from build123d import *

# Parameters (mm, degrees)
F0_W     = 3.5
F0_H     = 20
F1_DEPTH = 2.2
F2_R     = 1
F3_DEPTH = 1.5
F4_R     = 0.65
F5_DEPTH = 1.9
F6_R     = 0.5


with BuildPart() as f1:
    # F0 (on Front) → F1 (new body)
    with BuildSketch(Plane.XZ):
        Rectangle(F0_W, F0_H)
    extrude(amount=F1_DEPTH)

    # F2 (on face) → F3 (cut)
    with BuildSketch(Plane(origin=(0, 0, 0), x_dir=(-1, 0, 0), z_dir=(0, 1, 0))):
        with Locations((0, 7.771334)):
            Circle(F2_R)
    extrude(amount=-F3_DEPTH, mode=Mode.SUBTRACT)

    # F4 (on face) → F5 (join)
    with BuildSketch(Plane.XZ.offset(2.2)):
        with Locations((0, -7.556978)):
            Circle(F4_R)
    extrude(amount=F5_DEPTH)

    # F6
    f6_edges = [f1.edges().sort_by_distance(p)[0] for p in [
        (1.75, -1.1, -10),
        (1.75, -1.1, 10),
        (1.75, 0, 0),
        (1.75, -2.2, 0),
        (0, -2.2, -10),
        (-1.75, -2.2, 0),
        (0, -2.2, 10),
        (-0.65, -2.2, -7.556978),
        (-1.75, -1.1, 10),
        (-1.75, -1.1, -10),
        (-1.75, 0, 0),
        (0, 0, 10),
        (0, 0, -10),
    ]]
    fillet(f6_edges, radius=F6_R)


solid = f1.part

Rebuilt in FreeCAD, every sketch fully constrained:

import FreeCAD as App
import Part
import Sketcher
Q = App.Units.Quantity


def edges_at(feature, points):
    """Names of the edges that pass closest to the given points."""
    edges = feature.Shape.Edges
    near = lambda p: min(range(len(edges)), key=lambda i: edges[i].distToShape(Part.Vertex(*p))[0])
    return sorted({f"Edge{near(p) + 1}" for p in points})

doc = App.newDocument("Part")
body = doc.addObject("PartDesign::Body", "Body")

# Sketch on XZ plane
sketch1 = doc.addObject("Sketcher::SketchObject", "Sketch")
body.addObject(sketch1)
sketch1.AttachmentSupport = (doc.XZ_Plane, [""])
sketch1.MapMode = "FlatFace"
sketch1.addGeometry([
    Part.LineSegment(App.Vector(-1.8, 10, 0), App.Vector(-1.8, -10, 0)),
    Part.LineSegment(App.Vector(-1.8, -10, 0), App.Vector(1.8, -10, 0)),
    Part.LineSegment(App.Vector(1.8, -10, 0), App.Vector(1.8, 10, 0)),
    Part.LineSegment(App.Vector(1.8, 10, 0), App.Vector(-1.8, 10, 0)),
], False)
sketch1.addConstraint([
    Sketcher.Constraint("Coincident", 0, 2, 1, 1),
    Sketcher.Constraint("Coincident", 1, 2, 2, 1),
    Sketcher.Constraint("Coincident", 2, 2, 3, 1),
    Sketcher.Constraint("Coincident", 3, 2, 0, 1),
    Sketcher.Constraint("Vertical", 0),
    Sketcher.Constraint("Horizontal", 1),
    Sketcher.Constraint("Vertical", 2),
    Sketcher.Constraint("Horizontal", 3),
    Sketcher.Constraint("Symmetric", 0, 2, 2, 2, -1, 1),
    Sketcher.Constraint("DistanceY", 0, 2, 0, 1, Q("20 mm")),
    Sketcher.Constraint("DistanceX", 1, 1, 1, 2, Q("3.5 mm")),
])
pad1 = doc.addObject("PartDesign::Pad", "Pad")
body.addObject(pad1)
pad1.Profile = sketch1
pad1.Length = 2.2

# Sketch on XZ plane
sketch2 = doc.addObject("Sketcher::SketchObject", "Sketch001")
body.addObject(sketch2)
sketch2.AttachmentSupport = (doc.XZ_Plane, [""])
sketch2.MapMode = "FlatFace"
sketch2.addGeometry(Part.Circle(App.Vector(0, 7.8, 0), App.Vector(0, 0, 1), 1), False)
sketch2.addConstraint([
    Sketcher.Constraint("PointOnObject", 0, 3, -2),
    Sketcher.Constraint("Diameter", 0, Q("2 mm")),
    Sketcher.Constraint("DistanceY", -1, 1, 0, 3, Q("7.771334 mm")),
])
pocket1 = doc.addObject("PartDesign::Pocket", "Pocket")
body.addObject(pocket1)
pocket1.Profile = sketch2
pocket1.Length = 1.5
pocket1.Reversed = True

# Sketch on XZ plane
sketch3 = doc.addObject("Sketcher::SketchObject", "Sketch002")
body.addObject(sketch3)
sketch3.AttachmentSupport = (doc.XZ_Plane, [""])
sketch3.MapMode = "FlatFace"
sketch3.AttachmentOffset = App.Placement(App.Vector(0, 0, 2.2), App.Rotation())
sketch3.addGeometry(Part.Circle(App.Vector(0, -7.6, 0), App.Vector(0, 0, 1), 0.7), False)
sketch3.addConstraint([
    Sketcher.Constraint("PointOnObject", 0, 3, -2),
    Sketcher.Constraint("Diameter", 0, Q("1.3 mm")),
    Sketcher.Constraint("DistanceY", 0, 3, -1, 1, Q("7.556978 mm")),
])
pad2 = doc.addObject("PartDesign::Pad", "Pad001")
body.addObject(pad2)
pad2.Profile = sketch3
pad2.Length = 1.9
doc.recompute()

fillet = doc.addObject("PartDesign::Fillet", "Fillet")
body.addObject(fillet)
fillet.Base = (pad2, edges_at(pad2, [
    (1.75, -1.1, -10),
    (1.75, -1.1, 10),
    (1.75, 0, 0),
    (1.75, -2.2, 0),
    (0, -2.2, -10),
    (-1.75, -2.2, 0),
    (0, -2.2, 10),
    (-0.65, -2.2, -7.557),
    (-1.75, -1.1, 10),
    (-1.75, -1.1, -10),
    (-1.75, 0, 0),
    (0, 0, 10),
    (0, 0, -10),
]))
fillet.Radius = 0.5

doc.recompute()
